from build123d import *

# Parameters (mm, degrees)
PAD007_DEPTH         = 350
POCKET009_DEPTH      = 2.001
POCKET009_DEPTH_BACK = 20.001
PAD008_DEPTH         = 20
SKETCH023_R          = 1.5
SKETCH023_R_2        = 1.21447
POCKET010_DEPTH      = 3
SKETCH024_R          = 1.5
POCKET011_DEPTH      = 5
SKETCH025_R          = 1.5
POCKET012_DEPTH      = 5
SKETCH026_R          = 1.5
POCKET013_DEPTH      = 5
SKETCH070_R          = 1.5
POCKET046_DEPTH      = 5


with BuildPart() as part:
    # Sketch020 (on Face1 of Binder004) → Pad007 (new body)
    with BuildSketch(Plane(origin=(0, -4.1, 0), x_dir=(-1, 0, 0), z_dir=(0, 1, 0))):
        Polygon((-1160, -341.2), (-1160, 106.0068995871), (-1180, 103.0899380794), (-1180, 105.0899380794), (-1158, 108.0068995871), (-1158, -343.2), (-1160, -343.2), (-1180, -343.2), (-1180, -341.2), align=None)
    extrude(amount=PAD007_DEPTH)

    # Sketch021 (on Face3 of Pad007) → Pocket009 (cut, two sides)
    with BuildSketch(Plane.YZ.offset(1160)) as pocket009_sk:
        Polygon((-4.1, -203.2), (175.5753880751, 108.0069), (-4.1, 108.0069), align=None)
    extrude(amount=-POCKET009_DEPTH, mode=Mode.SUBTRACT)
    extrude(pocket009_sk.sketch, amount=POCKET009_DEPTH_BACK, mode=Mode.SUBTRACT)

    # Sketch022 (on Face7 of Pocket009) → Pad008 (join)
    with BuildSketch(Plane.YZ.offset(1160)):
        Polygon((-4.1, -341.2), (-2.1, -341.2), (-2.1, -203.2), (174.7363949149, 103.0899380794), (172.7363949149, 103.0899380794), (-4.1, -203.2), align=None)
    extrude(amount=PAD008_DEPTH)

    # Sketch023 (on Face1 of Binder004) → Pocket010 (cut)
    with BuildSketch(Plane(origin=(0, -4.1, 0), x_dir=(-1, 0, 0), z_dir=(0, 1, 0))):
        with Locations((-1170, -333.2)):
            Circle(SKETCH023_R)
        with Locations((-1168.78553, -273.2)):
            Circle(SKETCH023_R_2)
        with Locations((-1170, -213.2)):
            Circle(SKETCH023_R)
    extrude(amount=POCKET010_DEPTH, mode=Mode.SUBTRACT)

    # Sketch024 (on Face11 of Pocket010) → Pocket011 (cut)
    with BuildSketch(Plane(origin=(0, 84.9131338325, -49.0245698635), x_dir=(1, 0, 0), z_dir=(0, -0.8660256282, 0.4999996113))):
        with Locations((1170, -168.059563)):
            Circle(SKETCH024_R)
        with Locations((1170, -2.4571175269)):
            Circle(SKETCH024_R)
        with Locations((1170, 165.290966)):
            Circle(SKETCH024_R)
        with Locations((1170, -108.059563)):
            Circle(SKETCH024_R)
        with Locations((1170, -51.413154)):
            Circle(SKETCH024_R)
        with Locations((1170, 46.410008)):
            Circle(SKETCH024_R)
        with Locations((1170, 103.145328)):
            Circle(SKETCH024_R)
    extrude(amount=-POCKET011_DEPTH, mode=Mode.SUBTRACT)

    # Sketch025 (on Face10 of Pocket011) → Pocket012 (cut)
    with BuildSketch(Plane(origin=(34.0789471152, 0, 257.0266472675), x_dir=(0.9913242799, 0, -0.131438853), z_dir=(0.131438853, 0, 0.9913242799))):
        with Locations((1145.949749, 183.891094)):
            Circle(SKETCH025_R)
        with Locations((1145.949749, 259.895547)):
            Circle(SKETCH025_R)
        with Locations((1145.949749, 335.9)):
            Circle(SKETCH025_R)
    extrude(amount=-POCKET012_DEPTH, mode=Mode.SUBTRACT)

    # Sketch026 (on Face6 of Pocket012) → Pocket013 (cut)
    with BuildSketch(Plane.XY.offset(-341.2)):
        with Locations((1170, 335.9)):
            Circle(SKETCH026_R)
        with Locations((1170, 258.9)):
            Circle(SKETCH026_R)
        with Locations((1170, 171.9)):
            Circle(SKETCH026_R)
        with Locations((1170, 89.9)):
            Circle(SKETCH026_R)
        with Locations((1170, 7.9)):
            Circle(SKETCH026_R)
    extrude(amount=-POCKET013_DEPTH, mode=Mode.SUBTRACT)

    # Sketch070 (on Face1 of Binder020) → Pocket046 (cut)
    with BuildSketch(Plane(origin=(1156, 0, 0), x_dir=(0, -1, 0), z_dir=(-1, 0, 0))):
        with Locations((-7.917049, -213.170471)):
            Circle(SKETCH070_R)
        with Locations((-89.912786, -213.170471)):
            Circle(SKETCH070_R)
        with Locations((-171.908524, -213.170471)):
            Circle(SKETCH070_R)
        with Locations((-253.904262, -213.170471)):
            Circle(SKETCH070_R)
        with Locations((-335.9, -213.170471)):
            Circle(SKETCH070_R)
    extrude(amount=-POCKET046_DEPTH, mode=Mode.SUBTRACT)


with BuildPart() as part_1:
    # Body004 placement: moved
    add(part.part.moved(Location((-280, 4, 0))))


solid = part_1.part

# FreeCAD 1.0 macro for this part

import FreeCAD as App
import Part
import Sketcher

V = App.Vector
Q = App.Units.Quantity


def add_polygon(sketch, points):
    """Adds a closed chain of lines whose ends are joined by coincident constraints."""
    first, n = sketch.GeometryCount, len(points)
    for a, b in zip(points, points[1:] + points[:1]):
        sketch.addGeometry(Part.LineSegment(App.Vector(*a, 0), App.Vector(*b, 0)), False)
    for i in range(n):
        sketch.addConstraint(Sketcher.Constraint("Coincident", first + i, 2, first + (i + 1) % n, 1))

doc = App.newDocument("Part")
body = doc.addObject("PartDesign::Body", "Body")

# Sketch on XZ plane
sketch1 = body.newObject("Sketcher::SketchObject", "Sketch")
sketch1.AttachmentSupport = (doc.getObject("XZ_Plane"), [""])
sketch1.MapMode = "FlatFace"
sketch1.AttachmentOffset = App.Placement(V(0, 0, 4.1), App.Rotation())
add_polygon(sketch1, [(1160, 106.0069), (1160, -341.2), (1180, -341.2), (1180, -343.2), (1158, -343.2), (1158, 108.0069), (1180, 105.089938), (1180, 103.089938)])  # lines 0-7
sketch1.addConstraint(Sketcher.Constraint("Vertical", 0))
sketch1.addConstraint(Sketcher.Constraint("Horizontal", 1))
sketch1.addConstraint(Sketcher.Constraint("Vertical", 2))
sketch1.addConstraint(Sketcher.Constraint("Horizontal", 3))
sketch1.addConstraint(Sketcher.Constraint("Vertical", 4))
sketch1.addConstraint(Sketcher.Constraint("Vertical", 6))
sketch1.addConstraint(Sketcher.Constraint("Vertical", 2, 2, 5, 2))
sketch1.addConstraint(Sketcher.Constraint("Equal", 2, 6))
sketch1.addConstraint(Sketcher.Constraint("DistanceX", 1, 1, 1, 2, Q("20 mm")))
sketch1.addConstraint(Sketcher.Constraint("DistanceX", 3, 2, 3, 1, Q("22 mm")))
sketch1.addConstraint(Sketcher.Constraint("DistanceY", 2, 2, 2, 1, Q("2 mm")))
sketch1.addConstraint(Sketcher.Constraint("DistanceX", -1, 1, 0, 2, Q("1160 mm")))
sketch1.addConstraint(Sketcher.Constraint("DistanceY", 7, 2, 4, 2, Q("2 mm")))
sketch1.addConstraint(Sketcher.Constraint("DistanceY", 0, 2, -1, 1, Q("341.2 mm")))
sketch1.addConstraint(Sketcher.Constraint("DistanceY", 0, 2, 0, 1, Q("447.2069 mm")))
sketch1.addConstraint(Sketcher.Constraint("DistanceY", -1, 1, 5, 2, Q("105.089938 mm")))
pad1 = body.newObject("PartDesign::Pad", "Pad")
pad1.Profile = sketch1
pad1.Length = 350
pad1.Reversed = True

# Sketch on YZ plane
sketch2 = body.newObject("Sketcher::SketchObject", "Sketch001")
sketch2.AttachmentSupport = (doc.getObject("YZ_Plane"), [""])
sketch2.MapMode = "FlatFace"
sketch2.AttachmentOffset = App.Placement(V(0, 0, 1160), App.Rotation())
add_polygon(sketch2, [(-4.1, -203.2), (175.575388, 108.0069), (-4.1, 108.0069)])  # lines 0-2
sketch2.addConstraint(Sketcher.Constraint("Horizontal", 1))
sketch2.addConstraint(Sketcher.Constraint("Vertical", 2))
sketch2.addConstraint(Sketcher.Constraint("Angle", 0, Q("60 deg")))
sketch2.addConstraint(Sketcher.Constraint("DistanceX", 1, 2, -1, 1, Q("4.1 mm")))
sketch2.addConstraint(Sketcher.Constraint("DistanceY", 2, 2, -1, 1, Q("203.2 mm")))
sketch2.addConstraint(Sketcher.Constraint("DistanceY", 2, 2, 2, 1, Q("311.2069 mm")))
pocket1 = body.newObject("PartDesign::Pocket", "Pocket")
pocket1.Profile = sketch2
pocket1.Type = "ThroughAll"
pocket1.Midplane = True

# Sketch on YZ plane
sketch3 = body.newObject("Sketcher::SketchObject", "Sketch002")
sketch3.AttachmentSupport = (doc.getObject("YZ_Plane"), [""])
sketch3.MapMode = "FlatFace"
sketch3.AttachmentOffset = App.Placement(V(0, 0, 1160), App.Rotation())
add_polygon(sketch3, [(-4.1, -341.2), (-2.1, -341.2), (-2.1, -203.2), (174.736395, 103.089938), (172.736395, 103.089938), (-4.1, -203.2)])  # lines 0-5
sketch3.addConstraint(Sketcher.Constraint("Horizontal", 0))
sketch3.addConstraint(Sketcher.Constraint("Vertical", 1))
sketch3.addConstraint(Sketcher.Constraint("Horizontal", 3))
sketch3.addConstraint(Sketcher.Constraint("Vertical", 5))
sketch3.addConstraint(Sketcher.Constraint("Parallel", 2, 4))
sketch3.addConstraint(Sketcher.Constraint("Horizontal", 1, 2, 4, 2))
sketch3.addConstraint(Sketcher.Constraint("DistanceX", 0, 1, 0, 2, Q("2 mm")))
sketch3.addConstraint(Sketcher.Constraint("DistanceY", 1, 1, 1, 2, Q("138 mm")))
sketch3.addConstraint(Sketcher.Constraint("DistanceX", 0, 2, -1, 1, Q("2.1 mm")))
sketch3.addConstraint(Sketcher.Constraint("DistanceY", 0, 2, -1, 1, Q("341.2 mm")))
sketch3.addConstraint(Sketcher.Constraint("DistanceY", -1, 1, 2, 2, Q("103.089938 mm")))
sketch3.addConstraint(Sketcher.Constraint("Distance", 2, Q("353.673065 mm")))
pad2 = body.newObject("PartDesign::Pad", "Pad001")
pad2.Profile = sketch3
pad2.Length = 20

# Sketch on XZ plane
sketch4 = body.newObject("Sketcher::SketchObject", "Sketch003")
sketch4.AttachmentSupport = (doc.getObject("XZ_Plane"), [""])
sketch4.MapMode = "FlatFace"
sketch4.AttachmentOffset = App.Placement(V(0, 0, 4.1), App.Rotation())
sketch4.addGeometry(Part.Circle(V(1170, -333.2, 0), V(0, 0, 1), 1.5), False)
sketch4.addGeometry(Part.Circle(V(1168.78553, -273.2, 0), V(0, 0, 1), 1.21447), False)
sketch4.addGeometry(Part.Circle(V(1170, -213.2, 0), V(0, 0, 1), 1.5), False)
sketch4.addConstraint(Sketcher.Constraint("Equal", 0, 2))
sketch4.addConstraint(Sketcher.Constraint("Vertical", 0, 3, 2, 3))
sketch4.addConstraint(Sketcher.Constraint("Diameter", 0, Q("3 mm")))
sketch4.addConstraint(Sketcher.Constraint("DistanceX", -1, 1, 0, 3, Q("1170 mm")))
sketch4.addConstraint(Sketcher.Constraint("DistanceY", 0, 3, 1, 3, Q("60 mm")))
sketch4.addConstraint(Sketcher.Constraint("DistanceY", 1, 3, 2, 3, Q("60 mm")))
sketch4.addConstraint(Sketcher.Constraint("DistanceY", 0, 3, -1, 1, Q("333.2 mm")))
sketch4.addConstraint(Sketcher.Constraint("Diameter", 1, Q("2.42894 mm")))
sketch4.addConstraint(Sketcher.Constraint("DistanceX", -1, 1, 1, 3, Q("1168.78553 mm")))
pocket2 = body.newObject("PartDesign::Pocket", "Pocket001")
pocket2.Profile = sketch4
pocket2.Length = 3

# Sketch on an angled plane
sketch5 = body.newObject("Sketcher::SketchObject", "Sketch004")
sketch5.Placement = App.Placement(V(0, 84.913134, -49.02457), App.Rotation(V(1, 0, 0), V(0, 0.499999611, 0.866025628), V(0, -0.866025628, 0.499999611), "ZXY"))
sketch5.addGeometry(Part.Circle(V(1170, -168.059563, 0), V(0, 0, 1), 1.5), False)
sketch5.addGeometry(Part.Circle(V(1170, -2.457118, 0), V(0, 0, 1), 1.5), False)
sketch5.addGeometry(Part.Circle(V(1170, 165.290966, 0), V(0, 0, 1), 1.5), False)
sketch5.addGeometry(Part.Circle(V(1170, -108.059563, 0), V(0, 0, 1), 1.5), False)
sketch5.addGeometry(Part.Circle(V(1170, -51.413154, 0), V(0, 0, 1), 1.5), False)
sketch5.addGeometry(Part.Circle(V(1170, 46.410008, 0), V(0, 0, 1), 1.5), False)
sketch5.addGeometry(Part.Circle(V(1170, 103.145328, 0), V(0, 0, 1), 1.5), False)
sketch5.addConstraint(Sketcher.Constraint("Equal", 0, 1))
sketch5.addConstraint(Sketcher.Constraint("Equal", 1, 2))
sketch5.addConstraint(Sketcher.Constraint("Equal", 2, 3))
sketch5.addConstraint(Sketcher.Constraint("Equal", 3, 4))
sketch5.addConstraint(Sketcher.Constraint("Equal", 4, 5))
sketch5.addConstraint(Sketcher.Constraint("Equal", 5, 6))
sketch5.addConstraint(Sketcher.Constraint("Vertical", 0, 3, 1, 3))
sketch5.addConstraint(Sketcher.Constraint("Vertical", 1, 3, 2, 3))
sketch5.addConstraint(Sketcher.Constraint("Vertical", 2, 3, 3, 3))
sketch5.addConstraint(Sketcher.Constraint("Vertical", 3, 3, 4, 3))
sketch5.addConstraint(Sketcher.Constraint("Vertical", 4, 3, 5, 3))
sketch5.addConstraint(Sketcher.Constraint("Vertical", 5, 3, 6, 3))
sketch5.addConstraint(Sketcher.Constraint("Diameter", 0, Q("3 mm")))
sketch5.addConstraint(Sketcher.Constraint("DistanceX", -1, 1, 0, 3, Q("1170 mm")))
sketch5.addConstraint(Sketcher.Constraint("DistanceY", 0, 3, 3, 3, Q("60 mm")))
sketch5.addConstraint(Sketcher.Constraint("DistanceY", 0, 3, 2, 3, Q("333.350529 mm")))
sketch5.addConstraint(Sketcher.Constraint("DistanceY", 3, 3, 4, 3, Q("56.646409 mm")))
sketch5.addConstraint(Sketcher.Constraint("DistanceY", 4, 3, 5, 3, Q("97.823162 mm")))
sketch5.addConstraint(Sketcher.Constraint("DistanceY", 5, 3, 6, 3, Q("56.73532 mm")))
sketch5.addConstraint(Sketcher.Constraint("DistanceY", 0, 3, -1, 1, Q("168.059563 mm")))
sketch5.addConstraint(Sketcher.Constraint("DistanceY", 1, 3, -1, 1, Q("2.457118 mm")))
pocket3 = body.newObject("PartDesign::Pocket", "Pocket002")
pocket3.Profile = sketch5
pocket3.Length = 5

# Sketch on an angled plane
sketch6 = body.newObject("Sketcher::SketchObject", "Sketch005")
sketch6.Placement = App.Placement(V(34.078947, 0, 257.026647), App.Rotation(V(0.99132428, 0, -0.131438853), V(0, 1, 0), V(0.131438853, 0, 0.99132428), "ZXY"))
sketch6.addGeometry(Part.Circle(V(1145.949749, 183.891094, 0), V(0, 0, 1), 1.5), False)
sketch6.addGeometry(Part.Circle(V(1145.949749, 259.895547, 0), V(0, 0, 1), 1.5), False)
sketch6.addGeometry(Part.Circle(V(1145.949749, 335.9, 0), V(0, 0, 1), 1.5), False)
sketch6.addConstraint(Sketcher.Constraint("Equal", 0, 1))
sketch6.addConstraint(Sketcher.Constraint("Equal", 1, 2))
sketch6.addConstraint(Sketcher.Constraint("Vertical", 0, 3, 1, 3))
sketch6.addConstraint(Sketcher.Constraint("Vertical", 1, 3, 2, 3))
sketch6.addConstraint(Sketcher.Constraint("Diameter", 0, Q("3 mm")))
sketch6.addConstraint(Sketcher.Constraint("DistanceY", -1, 1, 2, 3, Q("335.9 mm")))
sketch6.addConstraint(Sketcher.Constraint("DistanceX", -1, 1, 0, 3, Q("1145.949749 mm")))
sketch6.addConstraint(Sketcher.Constraint("DistanceY", -1, 1, 0, 3, Q("183.891094 mm")))
sketch6.addConstraint(Sketcher.Constraint("DistanceY", -1, 1, 1, 3, Q("259.895547 mm")))
pocket4 = body.newObject("PartDesign::Pocket", "Pocket003")
pocket4.Profile = sketch6
pocket4.Length = 5

# Sketch on XY plane
sketch7 = body.newObject("Sketcher::SketchObject", "Sketch006")
sketch7.AttachmentSupport = (doc.getObject("XY_Plane"), [""])
sketch7.MapMode = "FlatFace"
sketch7.AttachmentOffset = App.Placement(V(0, 0, -341.2), App.Rotation())
sketch7.addGeometry(Part.Circle(V(1170, 335.9, 0), V(0, 0, 1), 1.5), False)
sketch7.addGeometry(Part.Circle(V(1170, 258.9, 0), V(0, 0, 1), 1.5), False)
sketch7.addGeometry(Part.Circle(V(1170, 171.9, 0), V(0, 0, 1), 1.5), False)
sketch7.addGeometry(Part.Circle(V(1170, 89.9, 0), V(0, 0, 1), 1.5), False)
sketch7.addGeometry(Part.Circle(V(1170, 7.9, 0), V(0, 0, 1), 1.5), False)
sketch7.addConstraint(Sketcher.Constraint("Equal", 0, 1))
sketch7.addConstraint(Sketcher.Constraint("Equal", 1, 2))
sketch7.addConstraint(Sketcher.Constraint("Equal", 2, 3))
sketch7.addConstraint(Sketcher.Constraint("Equal", 3, 4))
sketch7.addConstraint(Sketcher.Constraint("Vertical", 0, 3, 1, 3))
sketch7.addConstraint(Sketcher.Constraint("Vertical", 1, 3, 2, 3))
sketch7.addConstraint(Sketcher.Constraint("Vertical", 2, 3, 3, 3))
sketch7.addConstraint(Sketcher.Constraint("Vertical", 3, 3, 4, 3))
sketch7.addConstraint(Sketcher.Constraint("Diameter", 0, Q("3 mm")))
sketch7.addConstraint(Sketcher.Constraint("DistanceX", -1, 1, 0, 3, Q("1170 mm")))
sketch7.addConstraint(Sketcher.Constraint("DistanceY", 1, 3, 0, 3, Q("77 mm")))
sketch7.addConstraint(Sketcher.Constraint("DistanceY", 2, 3, 1, 3, Q("87 mm")))
sketch7.addConstraint(Sketcher.Constraint("DistanceY", 3, 3, 2, 3, Q("82 mm")))
sketch7.addConstraint(Sketcher.Constraint("DistanceY", 4, 3, 3, 3, Q("82 mm")))
sketch7.addConstraint(Sketcher.Constraint("DistanceY", -1, 1, 0, 3, Q("335.9 mm")))
pocket5 = body.newObject("PartDesign::Pocket", "Pocket004")
pocket5.Profile = sketch7
pocket5.Length = 5

# Sketch on YZ plane
sketch8 = body.newObject("Sketcher::SketchObject", "Sketch007")
sketch8.AttachmentSupport = (doc.getObject("YZ_Plane"), [""])
sketch8.MapMode = "FlatFace"
sketch8.AttachmentOffset = App.Placement(V(0, 0, 1156), App.Rotation())
sketch8.addGeometry(Part.Circle(V(7.917049, -213.170471, 0), V(0, 0, 1), 1.5), False)
sketch8.addGeometry(Part.Circle(V(89.912786, -213.170471, 0), V(0, 0, 1), 1.5), False)
sketch8.addGeometry(Part.Circle(V(171.908524, -213.170471, 0), V(0, 0, 1), 1.5), False)
sketch8.addGeometry(Part.Circle(V(253.904262, -213.170471, 0), V(0, 0, 1), 1.5), False)
sketch8.addGeometry(Part.Circle(V(335.9, -213.170471, 0), V(0, 0, 1), 1.5), False)
sketch8.addConstraint(Sketcher.Constraint("Equal", 0, 1))
sketch8.addConstraint(Sketcher.Constraint("Equal", 1, 2))
sketch8.addConstraint(Sketcher.Constraint("Equal", 2, 3))
sketch8.addConstraint(Sketcher.Constraint("Equal", 3, 4))
sketch8.addConstraint(Sketcher.Constraint("Horizontal", 0, 3, 1, 3))
sketch8.addConstraint(Sketcher.Constraint("Horizontal", 1, 3, 2, 3))
sketch8.addConstraint(Sketcher.Constraint("Horizontal", 2, 3, 3, 3))
sketch8.addConstraint(Sketcher.Constraint("Horizontal", 3, 3, 4, 3))
sketch8.addConstraint(Sketcher.Constraint("Diameter", 0, Q("3 mm")))
sketch8.addConstraint(Sketcher.Constraint("DistanceX", -1, 1, 4, 3, Q("335.9 mm")))
sketch8.addConstraint(Sketcher.Constraint("DistanceX", -1, 1, 0, 3, Q("7.917049 mm")))
sketch8.addConstraint(Sketcher.Constraint("DistanceY", 0, 3, -1, 1, Q("213.170471 mm")))
sketch8.addConstraint(Sketcher.Constraint("DistanceX", -1, 1, 3, 3, Q("253.904262 mm")))
sketch8.addConstraint(Sketcher.Constraint("DistanceX", 1, 3, 2, 3, Q("81.995738 mm")))
sketch8.addConstraint(Sketcher.Constraint("DistanceX", -1, 1, 1, 3, Q("89.912786 mm")))
pocket6 = body.newObject("PartDesign::Pocket", "Pocket005")
pocket6.Profile = sketch8
pocket6.Length = 5
pocket6.Reversed = True
body2 = doc.addObject("PartDesign::Body", "Body001")
doc.recompute()

body.Placement = App.Placement(V(-280, 4, 0), App.Rotation(V(0, 0, 1), 0))
boolean = body2.newObject("PartDesign::Boolean", "Boolean")
boolean.Type = "Fuse"
boolean.addObjects([body])

doc.recompute()
